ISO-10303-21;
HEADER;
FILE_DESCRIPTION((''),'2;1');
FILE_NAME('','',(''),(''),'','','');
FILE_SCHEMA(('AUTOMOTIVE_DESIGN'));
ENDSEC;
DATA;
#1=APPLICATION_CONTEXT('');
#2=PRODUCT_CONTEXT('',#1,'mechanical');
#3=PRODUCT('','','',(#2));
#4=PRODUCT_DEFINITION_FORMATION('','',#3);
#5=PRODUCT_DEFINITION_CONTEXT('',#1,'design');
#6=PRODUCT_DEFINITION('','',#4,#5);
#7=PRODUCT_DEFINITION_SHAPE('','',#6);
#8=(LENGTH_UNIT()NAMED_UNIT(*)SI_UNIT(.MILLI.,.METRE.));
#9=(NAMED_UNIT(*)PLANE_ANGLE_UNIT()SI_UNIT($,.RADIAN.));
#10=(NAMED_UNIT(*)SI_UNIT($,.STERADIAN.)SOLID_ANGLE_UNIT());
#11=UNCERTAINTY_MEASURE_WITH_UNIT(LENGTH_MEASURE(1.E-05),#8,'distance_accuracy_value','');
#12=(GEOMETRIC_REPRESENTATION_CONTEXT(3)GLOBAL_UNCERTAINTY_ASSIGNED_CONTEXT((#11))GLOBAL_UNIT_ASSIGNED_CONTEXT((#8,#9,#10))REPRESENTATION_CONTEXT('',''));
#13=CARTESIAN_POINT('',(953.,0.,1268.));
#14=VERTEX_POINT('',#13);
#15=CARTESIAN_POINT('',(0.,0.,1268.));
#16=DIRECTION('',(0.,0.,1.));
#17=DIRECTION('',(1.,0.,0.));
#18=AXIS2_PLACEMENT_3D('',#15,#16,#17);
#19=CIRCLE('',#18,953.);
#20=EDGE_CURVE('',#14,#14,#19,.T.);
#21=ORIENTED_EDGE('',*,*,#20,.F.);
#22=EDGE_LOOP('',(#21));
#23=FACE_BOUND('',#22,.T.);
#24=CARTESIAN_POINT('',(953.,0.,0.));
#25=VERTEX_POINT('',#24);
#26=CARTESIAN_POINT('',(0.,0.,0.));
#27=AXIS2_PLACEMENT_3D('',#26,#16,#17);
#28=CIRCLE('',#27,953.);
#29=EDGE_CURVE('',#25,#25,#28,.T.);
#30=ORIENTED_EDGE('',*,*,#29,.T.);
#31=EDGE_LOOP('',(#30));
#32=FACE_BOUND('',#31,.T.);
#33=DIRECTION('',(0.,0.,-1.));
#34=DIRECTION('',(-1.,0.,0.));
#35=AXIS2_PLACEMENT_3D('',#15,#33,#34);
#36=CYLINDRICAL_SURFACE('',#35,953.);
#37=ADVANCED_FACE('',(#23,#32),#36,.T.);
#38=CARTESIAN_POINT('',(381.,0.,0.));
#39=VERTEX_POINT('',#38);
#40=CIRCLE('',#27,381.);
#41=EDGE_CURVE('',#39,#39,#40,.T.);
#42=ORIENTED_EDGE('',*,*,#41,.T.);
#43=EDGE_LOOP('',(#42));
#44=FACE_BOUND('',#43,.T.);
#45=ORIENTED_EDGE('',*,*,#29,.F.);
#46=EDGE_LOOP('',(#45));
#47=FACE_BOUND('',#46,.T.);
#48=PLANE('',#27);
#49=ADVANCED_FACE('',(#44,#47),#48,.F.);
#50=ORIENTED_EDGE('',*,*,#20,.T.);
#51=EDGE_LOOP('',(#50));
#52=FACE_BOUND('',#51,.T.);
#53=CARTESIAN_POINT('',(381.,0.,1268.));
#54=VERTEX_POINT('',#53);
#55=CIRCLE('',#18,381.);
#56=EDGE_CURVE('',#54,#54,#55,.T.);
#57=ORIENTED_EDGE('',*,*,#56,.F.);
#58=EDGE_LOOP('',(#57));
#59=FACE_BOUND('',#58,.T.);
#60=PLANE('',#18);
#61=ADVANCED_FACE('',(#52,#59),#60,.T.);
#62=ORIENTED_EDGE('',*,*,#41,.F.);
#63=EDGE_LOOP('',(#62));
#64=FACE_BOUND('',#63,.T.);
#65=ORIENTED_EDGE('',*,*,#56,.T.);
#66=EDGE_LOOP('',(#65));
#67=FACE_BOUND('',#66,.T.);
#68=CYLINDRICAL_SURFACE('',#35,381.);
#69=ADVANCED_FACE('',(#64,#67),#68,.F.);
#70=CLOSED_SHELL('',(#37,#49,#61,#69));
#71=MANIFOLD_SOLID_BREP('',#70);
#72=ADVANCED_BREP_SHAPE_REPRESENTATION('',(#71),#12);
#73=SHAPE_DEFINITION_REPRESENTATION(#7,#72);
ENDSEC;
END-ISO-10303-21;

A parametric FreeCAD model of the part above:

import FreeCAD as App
import Part
import Sketcher
from FreeCAD import Vector
Q = App.Units.Quantity

doc = App.newDocument("Part")
params = doc.addObject("Spreadsheet::Sheet", "Params")
for row, (alias, value) in enumerate([
    ("sketch1_diameter", "1906 mm"),
    ("sketch1_diameter2", "762 mm"),
    ("pad1_length", "1268 mm"),
], start=1):
    params.set(f"A{row}", alias)
    params.set(f"B{row}", "=" + value)
    params.setAlias(f"B{row}", alias)

body = doc.addObject("PartDesign::Body", "Body")

sketch1 = body.newObject("Sketcher::SketchObject", "Sketch")
sketch1.AttachmentSupport = (doc.getObject("XY_Plane"), [""])
sketch1.MapMode = "FlatFace"
sketch1.addGeometry([
    Part.Circle(Vector(0, 0, 0), Vector(0, 0, 1), 953),
    Part.Circle(Vector(0, 0, 0), Vector(0, 0, 1), 381),
], False)
sketch1.addConstraint([
    Sketcher.Constraint("Coincident", 0, 3, -1, 1),
    Sketcher.Constraint("Coincident", 1, 3, -1, 1),
    Sketcher.Constraint("Diameter", 0, Q("1906 mm")),
    Sketcher.Constraint("Diameter", 1, Q("762 mm")),
])
sketch1.setExpression("Constraints[2]", "Params.sketch1_diameter")
sketch1.setExpression("Constraints[3]", "Params.sketch1_diameter2")
pad1 = body.newObject("PartDesign::Pad", "Pad")
pad1.Profile = sketch1
pad1.setExpression("Length", "Params.pad1_length")

doc.recompute()
